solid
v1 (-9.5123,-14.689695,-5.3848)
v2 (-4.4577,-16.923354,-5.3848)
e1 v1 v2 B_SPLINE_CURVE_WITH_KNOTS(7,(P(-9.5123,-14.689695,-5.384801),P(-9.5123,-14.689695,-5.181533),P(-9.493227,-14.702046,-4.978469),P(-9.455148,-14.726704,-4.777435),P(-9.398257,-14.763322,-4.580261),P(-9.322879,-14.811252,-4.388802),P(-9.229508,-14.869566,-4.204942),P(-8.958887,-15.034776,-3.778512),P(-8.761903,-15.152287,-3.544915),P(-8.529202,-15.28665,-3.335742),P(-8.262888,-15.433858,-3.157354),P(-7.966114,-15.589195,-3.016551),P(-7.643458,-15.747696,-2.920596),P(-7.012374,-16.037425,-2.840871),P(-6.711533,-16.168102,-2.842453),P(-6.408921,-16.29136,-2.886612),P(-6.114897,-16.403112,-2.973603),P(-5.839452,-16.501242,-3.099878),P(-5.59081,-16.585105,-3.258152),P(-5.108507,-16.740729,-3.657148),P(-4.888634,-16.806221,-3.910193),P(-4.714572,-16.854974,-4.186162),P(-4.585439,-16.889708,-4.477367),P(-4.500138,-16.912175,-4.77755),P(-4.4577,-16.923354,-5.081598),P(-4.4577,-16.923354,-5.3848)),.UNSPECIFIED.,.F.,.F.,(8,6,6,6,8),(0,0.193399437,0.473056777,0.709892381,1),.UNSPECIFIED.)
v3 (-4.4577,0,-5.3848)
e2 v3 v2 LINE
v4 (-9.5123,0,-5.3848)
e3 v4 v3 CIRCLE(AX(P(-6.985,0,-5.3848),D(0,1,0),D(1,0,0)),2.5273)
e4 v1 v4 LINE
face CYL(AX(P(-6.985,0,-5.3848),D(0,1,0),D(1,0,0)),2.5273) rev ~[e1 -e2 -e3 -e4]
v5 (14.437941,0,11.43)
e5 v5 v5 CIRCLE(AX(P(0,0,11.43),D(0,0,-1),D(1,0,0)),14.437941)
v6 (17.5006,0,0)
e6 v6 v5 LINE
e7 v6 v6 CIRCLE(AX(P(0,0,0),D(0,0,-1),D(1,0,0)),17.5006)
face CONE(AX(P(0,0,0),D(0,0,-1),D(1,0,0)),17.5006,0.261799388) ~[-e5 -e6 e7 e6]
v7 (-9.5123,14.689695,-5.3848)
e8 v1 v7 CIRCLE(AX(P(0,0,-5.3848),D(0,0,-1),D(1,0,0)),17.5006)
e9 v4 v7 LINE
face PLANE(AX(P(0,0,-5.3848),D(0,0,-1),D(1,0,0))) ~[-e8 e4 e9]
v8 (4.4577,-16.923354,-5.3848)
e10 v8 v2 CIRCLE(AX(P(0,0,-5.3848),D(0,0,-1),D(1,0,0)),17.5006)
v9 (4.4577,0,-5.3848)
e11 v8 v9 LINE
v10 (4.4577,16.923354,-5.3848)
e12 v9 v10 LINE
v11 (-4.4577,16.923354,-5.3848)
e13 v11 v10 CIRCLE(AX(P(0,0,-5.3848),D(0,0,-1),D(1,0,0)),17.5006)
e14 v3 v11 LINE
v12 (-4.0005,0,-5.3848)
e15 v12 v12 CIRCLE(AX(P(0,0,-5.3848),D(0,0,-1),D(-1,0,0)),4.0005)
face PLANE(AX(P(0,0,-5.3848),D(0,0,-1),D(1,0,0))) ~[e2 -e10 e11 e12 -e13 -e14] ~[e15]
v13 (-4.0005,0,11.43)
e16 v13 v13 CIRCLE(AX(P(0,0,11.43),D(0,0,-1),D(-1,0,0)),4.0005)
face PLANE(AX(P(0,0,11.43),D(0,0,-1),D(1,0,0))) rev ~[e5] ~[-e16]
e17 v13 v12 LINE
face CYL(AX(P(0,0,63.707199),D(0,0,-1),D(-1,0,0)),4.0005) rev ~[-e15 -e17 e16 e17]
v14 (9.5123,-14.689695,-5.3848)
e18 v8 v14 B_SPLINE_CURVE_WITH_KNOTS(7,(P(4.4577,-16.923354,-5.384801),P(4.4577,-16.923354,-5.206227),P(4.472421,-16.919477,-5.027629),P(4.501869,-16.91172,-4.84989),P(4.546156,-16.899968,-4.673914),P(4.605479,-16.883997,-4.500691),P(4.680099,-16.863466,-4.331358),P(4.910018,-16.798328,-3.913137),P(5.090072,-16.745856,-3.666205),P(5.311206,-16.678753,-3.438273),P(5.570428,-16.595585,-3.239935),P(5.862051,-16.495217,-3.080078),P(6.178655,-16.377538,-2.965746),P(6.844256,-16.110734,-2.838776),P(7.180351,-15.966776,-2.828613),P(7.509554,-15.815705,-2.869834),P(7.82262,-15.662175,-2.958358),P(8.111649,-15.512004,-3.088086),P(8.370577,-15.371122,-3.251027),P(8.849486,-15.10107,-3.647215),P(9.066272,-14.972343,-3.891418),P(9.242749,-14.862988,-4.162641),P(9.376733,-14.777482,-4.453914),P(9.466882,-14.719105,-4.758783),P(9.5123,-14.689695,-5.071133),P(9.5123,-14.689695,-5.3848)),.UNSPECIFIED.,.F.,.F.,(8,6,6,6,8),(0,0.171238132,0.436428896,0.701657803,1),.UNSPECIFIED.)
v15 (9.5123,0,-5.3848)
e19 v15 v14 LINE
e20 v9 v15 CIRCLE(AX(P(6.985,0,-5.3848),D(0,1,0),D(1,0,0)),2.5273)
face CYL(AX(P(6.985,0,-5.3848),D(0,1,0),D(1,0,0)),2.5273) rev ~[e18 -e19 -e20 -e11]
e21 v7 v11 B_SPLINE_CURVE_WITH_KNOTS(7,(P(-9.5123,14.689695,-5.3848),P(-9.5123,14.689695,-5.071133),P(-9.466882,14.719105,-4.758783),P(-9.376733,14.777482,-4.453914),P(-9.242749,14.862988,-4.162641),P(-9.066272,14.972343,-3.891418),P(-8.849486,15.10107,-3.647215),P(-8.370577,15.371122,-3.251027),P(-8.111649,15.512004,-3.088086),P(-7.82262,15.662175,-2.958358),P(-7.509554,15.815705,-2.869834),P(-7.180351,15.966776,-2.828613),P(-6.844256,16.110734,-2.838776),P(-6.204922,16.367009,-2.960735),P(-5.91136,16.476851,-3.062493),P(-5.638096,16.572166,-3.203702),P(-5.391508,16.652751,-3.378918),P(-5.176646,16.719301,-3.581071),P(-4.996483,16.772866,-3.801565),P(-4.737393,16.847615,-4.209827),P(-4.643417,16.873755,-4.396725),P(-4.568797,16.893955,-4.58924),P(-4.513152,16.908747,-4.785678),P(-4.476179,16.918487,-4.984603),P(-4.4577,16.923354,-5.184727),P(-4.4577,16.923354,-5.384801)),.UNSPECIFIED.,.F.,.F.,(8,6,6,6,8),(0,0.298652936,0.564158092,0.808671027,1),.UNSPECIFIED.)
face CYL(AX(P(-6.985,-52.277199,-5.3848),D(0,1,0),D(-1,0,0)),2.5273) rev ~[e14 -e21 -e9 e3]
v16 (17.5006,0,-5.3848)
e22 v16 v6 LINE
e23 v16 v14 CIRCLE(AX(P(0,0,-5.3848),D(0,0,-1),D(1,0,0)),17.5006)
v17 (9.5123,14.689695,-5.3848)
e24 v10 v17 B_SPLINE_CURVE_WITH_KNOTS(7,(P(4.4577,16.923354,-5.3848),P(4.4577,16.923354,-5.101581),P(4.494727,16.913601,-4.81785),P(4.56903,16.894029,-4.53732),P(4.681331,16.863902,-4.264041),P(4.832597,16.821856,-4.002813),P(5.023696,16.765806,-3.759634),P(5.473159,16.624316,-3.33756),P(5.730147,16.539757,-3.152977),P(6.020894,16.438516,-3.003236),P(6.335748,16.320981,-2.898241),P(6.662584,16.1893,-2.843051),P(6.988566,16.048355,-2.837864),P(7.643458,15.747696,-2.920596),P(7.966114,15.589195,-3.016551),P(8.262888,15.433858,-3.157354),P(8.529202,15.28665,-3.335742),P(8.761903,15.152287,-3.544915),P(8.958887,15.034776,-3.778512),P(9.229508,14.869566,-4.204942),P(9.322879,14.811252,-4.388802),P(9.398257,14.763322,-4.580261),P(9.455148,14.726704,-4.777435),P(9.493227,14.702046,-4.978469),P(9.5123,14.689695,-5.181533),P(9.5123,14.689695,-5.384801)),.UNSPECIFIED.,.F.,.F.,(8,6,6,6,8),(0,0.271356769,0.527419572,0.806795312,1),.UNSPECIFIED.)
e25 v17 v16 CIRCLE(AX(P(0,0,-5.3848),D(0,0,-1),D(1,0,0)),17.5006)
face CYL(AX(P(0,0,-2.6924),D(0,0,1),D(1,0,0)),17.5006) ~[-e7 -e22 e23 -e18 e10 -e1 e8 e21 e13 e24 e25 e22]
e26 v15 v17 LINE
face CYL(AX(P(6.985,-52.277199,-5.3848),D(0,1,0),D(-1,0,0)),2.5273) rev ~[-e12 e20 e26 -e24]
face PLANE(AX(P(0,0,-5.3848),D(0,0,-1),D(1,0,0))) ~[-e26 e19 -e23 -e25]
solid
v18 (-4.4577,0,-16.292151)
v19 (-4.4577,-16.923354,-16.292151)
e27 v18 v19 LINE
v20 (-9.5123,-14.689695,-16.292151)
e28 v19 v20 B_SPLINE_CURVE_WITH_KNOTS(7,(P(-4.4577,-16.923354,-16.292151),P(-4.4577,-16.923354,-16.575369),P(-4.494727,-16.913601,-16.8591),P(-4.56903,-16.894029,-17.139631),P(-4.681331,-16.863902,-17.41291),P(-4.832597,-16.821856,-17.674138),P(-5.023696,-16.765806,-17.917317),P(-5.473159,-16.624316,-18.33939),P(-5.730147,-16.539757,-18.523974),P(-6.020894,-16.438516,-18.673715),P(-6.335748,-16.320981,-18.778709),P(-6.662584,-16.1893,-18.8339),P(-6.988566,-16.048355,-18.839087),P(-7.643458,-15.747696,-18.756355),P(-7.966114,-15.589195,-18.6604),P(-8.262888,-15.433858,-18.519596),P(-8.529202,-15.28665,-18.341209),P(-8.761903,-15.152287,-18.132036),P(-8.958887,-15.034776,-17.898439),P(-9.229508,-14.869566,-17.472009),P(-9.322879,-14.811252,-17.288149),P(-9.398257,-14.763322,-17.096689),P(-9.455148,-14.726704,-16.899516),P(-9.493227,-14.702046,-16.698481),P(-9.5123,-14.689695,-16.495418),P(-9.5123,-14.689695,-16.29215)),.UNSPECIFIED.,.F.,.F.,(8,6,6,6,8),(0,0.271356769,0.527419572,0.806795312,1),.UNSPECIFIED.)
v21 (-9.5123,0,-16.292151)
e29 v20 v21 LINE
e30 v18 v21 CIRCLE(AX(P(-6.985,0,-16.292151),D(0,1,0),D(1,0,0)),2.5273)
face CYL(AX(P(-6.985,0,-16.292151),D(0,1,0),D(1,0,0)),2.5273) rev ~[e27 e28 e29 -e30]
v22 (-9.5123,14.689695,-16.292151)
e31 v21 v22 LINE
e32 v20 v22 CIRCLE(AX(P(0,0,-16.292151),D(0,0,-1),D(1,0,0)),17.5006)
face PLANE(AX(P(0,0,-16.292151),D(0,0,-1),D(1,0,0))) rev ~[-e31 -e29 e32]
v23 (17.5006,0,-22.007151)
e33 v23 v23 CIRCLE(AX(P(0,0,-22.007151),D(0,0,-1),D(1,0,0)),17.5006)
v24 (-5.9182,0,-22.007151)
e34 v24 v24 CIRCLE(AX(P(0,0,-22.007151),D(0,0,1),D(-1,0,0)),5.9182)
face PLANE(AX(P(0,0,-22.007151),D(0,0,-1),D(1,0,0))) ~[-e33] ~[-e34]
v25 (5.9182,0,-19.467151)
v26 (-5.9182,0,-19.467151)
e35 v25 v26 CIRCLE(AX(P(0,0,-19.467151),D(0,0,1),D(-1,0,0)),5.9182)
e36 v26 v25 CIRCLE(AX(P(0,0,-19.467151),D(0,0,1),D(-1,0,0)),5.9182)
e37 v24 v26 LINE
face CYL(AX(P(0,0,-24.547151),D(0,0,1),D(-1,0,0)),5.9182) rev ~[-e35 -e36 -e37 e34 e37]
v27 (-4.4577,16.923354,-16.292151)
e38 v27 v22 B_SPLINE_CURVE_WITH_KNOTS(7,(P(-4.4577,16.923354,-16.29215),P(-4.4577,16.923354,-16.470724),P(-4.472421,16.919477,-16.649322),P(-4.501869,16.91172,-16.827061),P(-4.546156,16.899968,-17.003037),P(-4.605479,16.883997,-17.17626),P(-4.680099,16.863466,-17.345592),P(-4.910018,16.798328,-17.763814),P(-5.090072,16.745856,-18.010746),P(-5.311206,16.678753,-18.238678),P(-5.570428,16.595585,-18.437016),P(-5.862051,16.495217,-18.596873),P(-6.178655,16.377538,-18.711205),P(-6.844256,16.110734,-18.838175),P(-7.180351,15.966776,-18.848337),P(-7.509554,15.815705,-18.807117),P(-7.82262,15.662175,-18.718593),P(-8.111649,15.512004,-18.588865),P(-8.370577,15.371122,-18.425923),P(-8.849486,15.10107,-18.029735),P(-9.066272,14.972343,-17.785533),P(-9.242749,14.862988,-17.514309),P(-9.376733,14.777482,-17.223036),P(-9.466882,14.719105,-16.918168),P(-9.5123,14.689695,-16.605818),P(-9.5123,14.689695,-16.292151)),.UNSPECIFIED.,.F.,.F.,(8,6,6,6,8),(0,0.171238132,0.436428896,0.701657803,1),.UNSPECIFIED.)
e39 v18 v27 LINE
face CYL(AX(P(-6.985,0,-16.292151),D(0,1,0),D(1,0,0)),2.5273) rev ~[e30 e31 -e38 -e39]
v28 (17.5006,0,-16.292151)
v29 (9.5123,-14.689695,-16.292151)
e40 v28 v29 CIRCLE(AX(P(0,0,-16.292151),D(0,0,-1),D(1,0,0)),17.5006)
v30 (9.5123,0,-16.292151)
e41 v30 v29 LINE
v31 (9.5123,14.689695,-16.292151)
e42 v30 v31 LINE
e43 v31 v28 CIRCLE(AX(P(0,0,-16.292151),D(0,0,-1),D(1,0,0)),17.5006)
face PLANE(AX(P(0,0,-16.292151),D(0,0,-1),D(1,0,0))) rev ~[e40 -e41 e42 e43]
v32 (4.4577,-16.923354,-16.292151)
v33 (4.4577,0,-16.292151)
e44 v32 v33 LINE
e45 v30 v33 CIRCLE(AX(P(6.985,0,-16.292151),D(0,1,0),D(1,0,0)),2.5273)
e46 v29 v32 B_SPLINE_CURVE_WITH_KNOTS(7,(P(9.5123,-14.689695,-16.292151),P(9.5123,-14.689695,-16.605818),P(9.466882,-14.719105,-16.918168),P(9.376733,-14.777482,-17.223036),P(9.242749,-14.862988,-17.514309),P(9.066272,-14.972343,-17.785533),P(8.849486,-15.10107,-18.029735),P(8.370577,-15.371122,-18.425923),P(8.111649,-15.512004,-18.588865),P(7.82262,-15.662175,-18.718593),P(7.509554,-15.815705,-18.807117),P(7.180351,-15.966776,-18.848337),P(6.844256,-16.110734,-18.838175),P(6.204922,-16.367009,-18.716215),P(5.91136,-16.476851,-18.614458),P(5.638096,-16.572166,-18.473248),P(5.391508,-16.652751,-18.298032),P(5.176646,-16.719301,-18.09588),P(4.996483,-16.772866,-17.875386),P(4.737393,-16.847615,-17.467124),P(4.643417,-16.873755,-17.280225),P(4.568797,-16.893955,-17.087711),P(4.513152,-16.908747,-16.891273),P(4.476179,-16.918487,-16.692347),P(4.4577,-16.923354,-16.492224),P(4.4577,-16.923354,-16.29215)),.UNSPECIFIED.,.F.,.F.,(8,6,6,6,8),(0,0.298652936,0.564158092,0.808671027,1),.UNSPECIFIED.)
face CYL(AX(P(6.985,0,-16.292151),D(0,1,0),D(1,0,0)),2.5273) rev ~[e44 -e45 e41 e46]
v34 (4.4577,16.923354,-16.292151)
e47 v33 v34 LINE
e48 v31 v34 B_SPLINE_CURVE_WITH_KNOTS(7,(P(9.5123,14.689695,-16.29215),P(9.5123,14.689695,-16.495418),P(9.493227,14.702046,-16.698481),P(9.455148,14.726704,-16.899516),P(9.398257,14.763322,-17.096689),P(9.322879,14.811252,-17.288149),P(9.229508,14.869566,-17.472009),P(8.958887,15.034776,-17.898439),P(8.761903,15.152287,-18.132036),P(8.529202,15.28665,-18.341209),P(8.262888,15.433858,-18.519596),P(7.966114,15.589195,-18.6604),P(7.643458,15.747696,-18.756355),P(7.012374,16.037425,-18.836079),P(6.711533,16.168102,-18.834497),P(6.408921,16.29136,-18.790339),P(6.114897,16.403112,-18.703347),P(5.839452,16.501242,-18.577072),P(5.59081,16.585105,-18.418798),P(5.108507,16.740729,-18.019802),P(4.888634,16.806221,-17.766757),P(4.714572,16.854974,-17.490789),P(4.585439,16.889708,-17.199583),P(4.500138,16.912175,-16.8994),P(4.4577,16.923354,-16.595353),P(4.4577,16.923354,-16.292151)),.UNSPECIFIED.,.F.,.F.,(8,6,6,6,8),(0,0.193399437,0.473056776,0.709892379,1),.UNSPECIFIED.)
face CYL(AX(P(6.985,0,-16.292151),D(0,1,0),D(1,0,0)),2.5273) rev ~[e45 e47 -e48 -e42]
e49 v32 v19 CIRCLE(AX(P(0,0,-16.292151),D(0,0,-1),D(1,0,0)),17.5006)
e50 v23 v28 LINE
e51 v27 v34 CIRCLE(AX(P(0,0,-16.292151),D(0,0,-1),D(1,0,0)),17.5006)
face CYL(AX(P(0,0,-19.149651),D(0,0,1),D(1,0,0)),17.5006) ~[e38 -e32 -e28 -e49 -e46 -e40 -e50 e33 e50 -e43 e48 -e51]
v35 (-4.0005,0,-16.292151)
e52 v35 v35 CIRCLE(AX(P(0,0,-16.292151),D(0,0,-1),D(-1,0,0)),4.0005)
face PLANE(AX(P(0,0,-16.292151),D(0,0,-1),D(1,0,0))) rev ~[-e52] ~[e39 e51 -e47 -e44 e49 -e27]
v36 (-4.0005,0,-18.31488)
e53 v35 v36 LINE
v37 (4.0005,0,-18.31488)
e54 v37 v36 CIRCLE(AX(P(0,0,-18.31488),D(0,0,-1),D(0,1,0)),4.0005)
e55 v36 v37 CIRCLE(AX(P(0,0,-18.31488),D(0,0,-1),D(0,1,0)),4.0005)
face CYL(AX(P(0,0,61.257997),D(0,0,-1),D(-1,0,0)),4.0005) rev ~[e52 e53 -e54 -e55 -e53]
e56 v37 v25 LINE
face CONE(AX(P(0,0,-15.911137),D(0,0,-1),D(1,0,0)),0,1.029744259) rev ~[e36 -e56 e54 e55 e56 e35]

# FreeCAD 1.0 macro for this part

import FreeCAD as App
import Part
import Sketcher

V = App.Vector
Q = App.Units.Quantity


def add_polygon(sketch, points):
    """Adds a closed chain of lines whose ends are joined by coincident constraints."""
    first, n = sketch.GeometryCount, len(points)
    for a, b in zip(points, points[1:] + points[:1]):
        sketch.addGeometry(Part.LineSegment(App.Vector(*a, 0), App.Vector(*b, 0)), False)
    for i in range(n):
        sketch.addConstraint(Sketcher.Constraint("Coincident", first + i, 2, first + (i + 1) % n, 1))

doc = App.newDocument("Part")
body = doc.addObject("PartDesign::Body", "Body")

sketch1 = doc.addObject("Sketcher::SketchObject", "Sketch")
body.addObject(sketch1)
sketch1.AttachmentSupport = (doc.XZ_Plane, [""])
sketch1.MapMode = "FlatFace"
add_polygon(sketch1, [(0, 11), (0, -5), (18, -5), (18, 0), (14, 11)])
sketch1.addConstraint([
    Sketcher.Constraint("Vertical", 0),
    Sketcher.Constraint("Horizontal", 1),
    Sketcher.Constraint("Vertical", 2),
    Sketcher.Constraint("Horizontal", 4),
    Sketcher.Constraint("PointOnObject", 0, 2, -2),
    Sketcher.Constraint("PointOnObject", 2, 2, -1),
    Sketcher.Constraint("Angle", 3, Q("105 deg")),
    Sketcher.Constraint("DistanceX", 1, 1, 1, 2, Q("0.689 in")),
    Sketcher.Constraint("DistanceY", 0, 2, 0, 1, Q("0.662 in")),
    Sketcher.Constraint("DistanceY", 2, 1, 2, 2, Q("0.212 in")),
])
revolution = doc.addObject("PartDesign::Revolution", "Revolution")
body.addObject(revolution)
revolution.Profile = sketch1
revolution.ReferenceAxis = (sketch1, ["V_Axis"])
revolution.Angle = 360

sketch2 = doc.addObject("Sketcher::SketchObject", "Sketch001")
body.addObject(sketch2)
sketch2.AttachmentSupport = (doc.XZ_Plane, [""])
sketch2.MapMode = "FlatFace"
sketch2.addGeometry([
    Part.Circle(V(-7, -16.3, 0), V(0, 0, 1), 2.5),
    Part.Circle(V(7, -5.4, 0), V(0, 0, 1), 2.5),
    Part.Circle(V(-7, -5.4, 0), V(0, 0, 1), 2.5),
    Part.Circle(V(7, -16.3, 0), V(0, 0, 1), 2.5),
], False)
sketch2.addConstraint([
    Sketcher.Constraint("Equal", 0, 1),
    Sketcher.Constraint("Equal", 1, 2),
    Sketcher.Constraint("Equal", 2, 3),
    Sketcher.Constraint("Symmetric", 1, 3, 2, 3, -2),
    Sketcher.Constraint("Symmetric", 0, 3, 3, 3, -2),
    Sketcher.Constraint("Vertical", 0, 3, 2, 3),
    Sketcher.Constraint("Diameter", 0, Q("0.199 in")),
    Sketcher.Constraint("DistanceX", 0, 3, 1, 3, Q("0.55 in")),
    Sketcher.Constraint("DistanceY", 1, 3, -1, 1, Q("0.212 in")),
    Sketcher.Constraint("DistanceY", 0, 3, -1, 1, Q("16.292151 mm")),
])
pocket1 = doc.addObject("PartDesign::Pocket", "Pocket")
body.addObject(pocket1)
pocket1.Profile = sketch2
pocket1.Type = "ThroughAll"
pocket1.Reversed = True

sketch3 = doc.addObject("Sketcher::SketchObject", "Sketch002")
body.addObject(sketch3)
sketch3.AttachmentSupport = (doc.XZ_Plane, [""])
sketch3.MapMode = "FlatFace"
sketch3.addGeometry([
    Part.Circle(V(-7, -5.4, 0), V(0, 0, 1), 2.5),
    Part.Circle(V(7, -5.4, 0), V(0, 0, 1), 2.5),
    Part.Circle(V(7, -16.3, 0), V(0, 0, 1), 2.5),
    Part.Circle(V(-7, -16.3, 0), V(0, 0, 1), 2.5),
], False)
sketch3.addConstraint([
    Sketcher.Constraint("Equal", 0, 1),
    Sketcher.Constraint("Equal", 1, 2),
    Sketcher.Constraint("Equal", 2, 3),
    Sketcher.Constraint("Symmetric", 0, 3, 1, 3, -2),
    Sketcher.Constraint("Symmetric", 2, 3, 3, 3, -2),
    Sketcher.Constraint("Vertical", 1, 3, 2, 3),
    Sketcher.Constraint("Diameter", 0, Q("0.199 in")),
    Sketcher.Constraint("DistanceX", 0, 3, 1, 3, Q("0.55 in")),
    Sketcher.Constraint("DistanceY", 0, 3, -1, 1, Q("0.212 in")),
    Sketcher.Constraint("DistanceY", 2, 3, -1, 1, Q("16.292151 mm")),
])
doc.recompute()
hole = doc.addObject("PartDesign::Hole", "Hole")
body.addObject(hole)
hole.Profile = sketch3
hole.ThreadType = "None"
hole.Diameter = Q("0.199 in")
hole.DepthType = "ThroughAll"

sketch4 = doc.addObject("Sketcher::SketchObject", "Sketch003")
body.addObject(sketch4)
sketch4.AttachmentSupport = (doc.XY_Plane, [""])
sketch4.MapMode = "FlatFace"
sketch4.AttachmentOffset = App.Placement(V(0, 0, 0.45 * 25.4), App.Rotation())
sketch4.addGeometry(Part.Circle(V(0, 0, 0), V(0, 0, 1), 4), False)
sketch4.addConstraint([
    Sketcher.Constraint("Coincident", 0, 3, -1, 1),
    Sketcher.Constraint("Diameter", 0, Q("0.315 in")),
])
doc.recompute()
hole2 = doc.addObject("PartDesign::Hole", "Hole001")
body.addObject(hole2)
hole2.Profile = sketch4
hole2.ThreadType = "None"
hole2.Diameter = Q("0.315 in")
hole2.DepthType = "ThroughAll"
body2 = doc.addObject("PartDesign::Body", "Body001")

sketch5 = doc.addObject("Sketcher::SketchObject", "Sketch004")
body2.addObject(sketch5)
sketch5.AttachmentSupport = (doc.getObject("XZ_Plane001"), [""])
sketch5.MapMode = "FlatFace"
add_polygon(sketch5, [(0, -16), (0, -22), (18, -22), (18, -16)])
sketch5.addConstraint([
    Sketcher.Constraint("Vertical", 0),
    Sketcher.Constraint("Horizontal", 1),
    Sketcher.Constraint("Vertical", 2),
    Sketcher.Constraint("Horizontal", 3),
    Sketcher.Constraint("PointOnObject", 0, 2, -2),
    Sketcher.Constraint("DistanceX", 1, 1, 1, 2, Q("0.689 in")),
    Sketcher.Constraint("DistanceY", 0, 2, 0, 1, Q("0.225 in")),
    Sketcher.Constraint("DistanceY", 0, 2, -1, 1, Q("22.007151 mm")),
])
revolution2 = doc.addObject("PartDesign::Revolution", "Revolution001")
body2.addObject(revolution2)
revolution2.Profile = sketch5
revolution2.ReferenceAxis = (sketch5, ["V_Axis"])
revolution2.Angle = 360

sketch6 = doc.addObject("Sketcher::SketchObject", "Sketch005")
body2.addObject(sketch6)
sketch6.AttachmentSupport = (doc.getObject("XZ_Plane001"), [""])
sketch6.MapMode = "FlatFace"
sketch6.addGeometry([
    Part.Circle(V(-7, -16.3, 0), V(0, 0, 1), 2.5),
    Part.Circle(V(7, -5.4, 0), V(0, 0, 1), 2.5),
    Part.Circle(V(-7, -5.4, 0), V(0, 0, 1), 2.5),
    Part.Circle(V(7, -16.3, 0), V(0, 0, 1), 2.5),
], False)
sketch6.addConstraint([
    Sketcher.Constraint("Equal", 0, 1),
    Sketcher.Constraint("Equal", 1, 2),
    Sketcher.Constraint("Equal", 2, 3),
    Sketcher.Constraint("Symmetric", 1, 3, 2, 3, -2),
    Sketcher.Constraint("Symmetric", 0, 3, 3, 3, -2),
    Sketcher.Constraint("Vertical", 0, 3, 2, 3),
    Sketcher.Constraint("Diameter", 0, Q("0.199 in")),
    Sketcher.Constraint("DistanceX", 0, 3, 1, 3, Q("0.55 in")),
    Sketcher.Constraint("DistanceY", 1, 3, -1, 1, Q("0.212 in")),
    Sketcher.Constraint("DistanceY", 0, 3, -1, 1, Q("16.292151 mm")),
])
pocket2 = doc.addObject("PartDesign::Pocket", "Pocket001")
body2.addObject(pocket2)
pocket2.Profile = sketch6
pocket2.Type = "ThroughAll"
pocket2.Reversed = True

sketch7 = doc.addObject("Sketcher::SketchObject", "Sketch006")
body2.addObject(sketch7)
sketch7.AttachmentSupport = (doc.getObject("XZ_Plane001"), [""])
sketch7.MapMode = "FlatFace"
sketch7.addGeometry([
    Part.Circle(V(-7, -5.4, 0), V(0, 0, 1), 2.5),
    Part.Circle(V(7, -5.4, 0), V(0, 0, 1), 2.5),
    Part.Circle(V(7, -16.3, 0), V(0, 0, 1), 2.5),
    Part.Circle(V(-7, -16.3, 0), V(0, 0, 1), 2.5),
], False)
sketch7.addConstraint([
    Sketcher.Constraint("Equal", 0, 1),
    Sketcher.Constraint("Equal", 1, 2),
    Sketcher.Constraint("Equal", 2, 3),
    Sketcher.Constraint("Symmetric", 0, 3, 1, 3, -2),
    Sketcher.Constraint("Symmetric", 2, 3, 3, 3, -2),
    Sketcher.Constraint("Vertical", 1, 3, 2, 3),
    Sketcher.Constraint("Diameter", 0, Q("0.199 in")),
    Sketcher.Constraint("DistanceX", 0, 3, 1, 3, Q("0.55 in")),
    Sketcher.Constraint("DistanceY", 0, 3, -1, 1, Q("0.212 in")),
    Sketcher.Constraint("DistanceY", 2, 3, -1, 1, Q("16.292151 mm")),
])
doc.recompute()
hole3 = doc.addObject("PartDesign::Hole", "Hole002")
body2.addObject(hole3)
hole3.Profile = sketch7
hole3.ThreadType = "None"
hole3.Diameter = Q("0.199 in")
hole3.DepthType = "ThroughAll"

sketch8 = doc.addObject("Sketcher::SketchObject", "Sketch007")
body2.addObject(sketch8)
sketch8.AttachmentSupport = (doc.getObject("XY_Plane001"), [""])
sketch8.MapMode = "FlatFace"
sketch8.AttachmentOffset = App.Placement(V(0, 0, 0.45 * 25.4), App.Rotation())
sketch8.addGeometry(Part.Circle(V(0, 0, 0), V(0, 0, 1), 4), False)
sketch8.addConstraint([
    Sketcher.Constraint("Coincident", 0, 3, -1, 1),
    Sketcher.Constraint("Diameter", 0, Q("0.315 in")),
])
doc.recompute()
hole4 = doc.addObject("PartDesign::Hole", "Hole003")
body2.addObject(hole4)
hole4.Profile = sketch8
hole4.ThreadType = "None"
hole4.Diameter = Q("0.315 in")
hole4.DepthType = "ThroughAll"

sketch9 = doc.addObject("Sketcher::SketchObject", "Sketch008")
body2.addObject(sketch9)
sketch9.AttachmentSupport = (doc.getObject("XY_Plane001"), [""])
sketch9.MapMode = "FlatFace"
sketch9.AttachmentOffset = App.Placement(V(0, 0, -22.007151), App.Rotation())
sketch9.addGeometry(Part.Circle(V(0, 0, 0), V(0, 0, 1), 6), False)
sketch9.addConstraint([
    Sketcher.Constraint("Coincident", 0, 3, -1, 1),
    Sketcher.Constraint("Diameter", 0, Q("0.466 in")),
])
doc.recompute()
hole5 = doc.addObject("PartDesign::Hole", "Hole004")
body2.addObject(hole5)
hole5.Profile = sketch9
hole5.ThreadType = "None"
hole5.Diameter = Q("0.466 in")
hole5.DepthType = "Dimension"
hole5.Depth = Q("0.1 in")
hole5.DrillPoint = "Angled"
hole5.DrillPointAngle = 118
hole5.Reversed = True

doc.recompute()
